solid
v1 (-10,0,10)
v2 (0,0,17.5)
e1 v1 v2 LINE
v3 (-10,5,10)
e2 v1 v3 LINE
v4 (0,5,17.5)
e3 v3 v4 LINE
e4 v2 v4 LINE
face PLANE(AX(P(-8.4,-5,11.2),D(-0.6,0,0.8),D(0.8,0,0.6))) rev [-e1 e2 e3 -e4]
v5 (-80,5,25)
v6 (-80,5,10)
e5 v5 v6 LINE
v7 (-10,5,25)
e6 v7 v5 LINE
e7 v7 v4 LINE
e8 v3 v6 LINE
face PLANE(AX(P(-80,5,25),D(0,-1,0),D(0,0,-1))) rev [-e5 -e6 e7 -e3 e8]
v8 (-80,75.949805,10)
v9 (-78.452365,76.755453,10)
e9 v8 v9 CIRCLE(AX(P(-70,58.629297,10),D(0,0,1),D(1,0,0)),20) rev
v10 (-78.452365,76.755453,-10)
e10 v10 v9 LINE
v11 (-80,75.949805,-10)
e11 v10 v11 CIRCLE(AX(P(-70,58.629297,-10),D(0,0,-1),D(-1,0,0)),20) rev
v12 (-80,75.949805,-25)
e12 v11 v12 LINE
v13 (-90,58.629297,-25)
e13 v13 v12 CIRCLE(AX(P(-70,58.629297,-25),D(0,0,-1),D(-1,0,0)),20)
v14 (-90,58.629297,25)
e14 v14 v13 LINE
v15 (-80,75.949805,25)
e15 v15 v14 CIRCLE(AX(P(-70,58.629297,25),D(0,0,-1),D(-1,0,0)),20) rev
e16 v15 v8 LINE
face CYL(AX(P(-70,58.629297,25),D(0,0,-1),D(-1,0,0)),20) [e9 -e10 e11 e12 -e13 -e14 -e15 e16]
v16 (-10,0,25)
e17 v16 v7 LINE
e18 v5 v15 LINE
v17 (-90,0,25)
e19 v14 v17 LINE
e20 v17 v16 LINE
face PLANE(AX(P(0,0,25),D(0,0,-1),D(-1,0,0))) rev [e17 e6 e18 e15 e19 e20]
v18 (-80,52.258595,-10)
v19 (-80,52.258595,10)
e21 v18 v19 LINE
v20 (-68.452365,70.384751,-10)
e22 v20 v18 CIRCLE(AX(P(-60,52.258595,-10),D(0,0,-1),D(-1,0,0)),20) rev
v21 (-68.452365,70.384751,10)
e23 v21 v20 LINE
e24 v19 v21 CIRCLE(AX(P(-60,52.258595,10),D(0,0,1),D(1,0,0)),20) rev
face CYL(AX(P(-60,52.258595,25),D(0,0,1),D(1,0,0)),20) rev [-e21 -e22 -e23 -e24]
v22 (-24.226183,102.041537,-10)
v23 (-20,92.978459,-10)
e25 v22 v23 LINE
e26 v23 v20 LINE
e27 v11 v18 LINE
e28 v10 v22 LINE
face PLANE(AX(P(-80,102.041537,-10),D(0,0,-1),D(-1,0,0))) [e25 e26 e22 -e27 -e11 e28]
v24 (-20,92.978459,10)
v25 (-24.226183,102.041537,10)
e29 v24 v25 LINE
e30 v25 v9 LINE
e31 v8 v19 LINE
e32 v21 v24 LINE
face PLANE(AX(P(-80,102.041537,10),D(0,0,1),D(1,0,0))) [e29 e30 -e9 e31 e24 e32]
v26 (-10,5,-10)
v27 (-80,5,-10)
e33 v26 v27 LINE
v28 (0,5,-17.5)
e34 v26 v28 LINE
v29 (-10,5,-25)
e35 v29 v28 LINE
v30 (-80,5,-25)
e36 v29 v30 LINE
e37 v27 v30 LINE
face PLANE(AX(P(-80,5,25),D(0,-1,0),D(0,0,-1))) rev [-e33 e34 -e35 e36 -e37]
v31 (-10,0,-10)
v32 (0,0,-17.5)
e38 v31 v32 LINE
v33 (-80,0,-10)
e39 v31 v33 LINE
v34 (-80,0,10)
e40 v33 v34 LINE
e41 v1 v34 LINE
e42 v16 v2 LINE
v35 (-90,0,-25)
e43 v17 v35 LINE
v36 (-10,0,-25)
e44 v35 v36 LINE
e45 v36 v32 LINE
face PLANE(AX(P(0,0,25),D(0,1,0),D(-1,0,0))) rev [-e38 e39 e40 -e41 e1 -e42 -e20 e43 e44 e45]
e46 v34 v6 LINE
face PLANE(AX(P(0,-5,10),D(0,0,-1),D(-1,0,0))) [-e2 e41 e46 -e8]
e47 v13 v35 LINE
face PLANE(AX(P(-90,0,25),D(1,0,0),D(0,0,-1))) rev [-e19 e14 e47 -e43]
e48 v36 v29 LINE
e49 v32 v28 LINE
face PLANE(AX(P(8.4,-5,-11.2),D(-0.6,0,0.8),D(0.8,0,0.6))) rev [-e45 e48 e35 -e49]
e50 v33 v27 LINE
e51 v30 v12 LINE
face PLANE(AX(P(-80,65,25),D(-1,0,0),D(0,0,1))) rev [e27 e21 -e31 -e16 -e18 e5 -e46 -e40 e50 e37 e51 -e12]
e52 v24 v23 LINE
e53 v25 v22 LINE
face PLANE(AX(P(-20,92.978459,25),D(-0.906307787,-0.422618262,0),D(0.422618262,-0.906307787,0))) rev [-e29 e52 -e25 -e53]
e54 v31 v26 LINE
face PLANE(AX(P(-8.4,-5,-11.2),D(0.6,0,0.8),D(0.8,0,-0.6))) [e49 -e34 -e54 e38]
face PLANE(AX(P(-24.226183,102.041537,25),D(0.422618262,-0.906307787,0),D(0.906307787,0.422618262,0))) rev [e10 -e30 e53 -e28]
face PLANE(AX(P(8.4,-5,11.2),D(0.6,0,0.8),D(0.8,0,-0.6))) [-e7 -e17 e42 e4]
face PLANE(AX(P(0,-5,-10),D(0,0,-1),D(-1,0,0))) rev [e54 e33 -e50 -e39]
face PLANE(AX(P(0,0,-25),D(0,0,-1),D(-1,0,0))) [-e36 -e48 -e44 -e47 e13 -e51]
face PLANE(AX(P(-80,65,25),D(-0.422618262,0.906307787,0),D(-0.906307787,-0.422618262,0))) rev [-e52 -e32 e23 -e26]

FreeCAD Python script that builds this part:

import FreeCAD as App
import Part
import Sketcher

V = App.Vector
Q = App.Units.Quantity


def edges_at(feature, points):
    """Names of the edges that pass closest to the given points."""
    edges = feature.Shape.Edges
    near = lambda p: min(range(len(edges)), key=lambda i: edges[i].distToShape(Part.Vertex(*p))[0])
    return sorted({f"Edge{near(p) + 1}" for p in points})


def add_polygon(sketch, points):
    """Adds a closed chain of lines whose ends are joined by coincident constraints."""
    first, n = sketch.GeometryCount, len(points)
    for a, b in zip(points, points[1:] + points[:1]):
        sketch.addGeometry(Part.LineSegment(App.Vector(*a, 0), App.Vector(*b, 0)), False)
    for i in range(n):
        sketch.addConstraint(Sketcher.Constraint("Coincident", first + i, 2, first + (i + 1) % n, 1))

doc = App.newDocument("Part")
body = doc.addObject("PartDesign::Body", "Body")

# Sketch on XY plane
sketch1 = doc.addObject("Sketcher::SketchObject", "Sketch")
body.addObject(sketch1)
sketch1.AttachmentSupport = (doc.XY_Plane, [""])
sketch1.MapMode = "FlatFace"
add_polygon(sketch1, [(0, 0), (0, 5), (-80, 5), (-80, 65), (-20, 93), (-24, 102), (-90, 71), (-90, 0)])  # lines 0-7
sketch1.addConstraint([
    Sketcher.Constraint("Vertical", 0),
    Sketcher.Constraint("Horizontal", 1),
    Sketcher.Constraint("Vertical", 2),
    Sketcher.Constraint("Vertical", 6),
    Sketcher.Constraint("Horizontal", 7),
    Sketcher.Constraint("Coincident", 7, 2, -1, 1),
    Sketcher.Constraint("Perpendicular", 3, 4),
    Sketcher.Constraint("Perpendicular", 4, 5),
    Sketcher.Constraint("DistanceX", 1, 2, 1, 1, Q("80 mm")),
    Sketcher.Constraint("DistanceX", 7, 1, 7, 2, Q("90 mm")),
    Sketcher.Constraint("DistanceY", 0, 1, 0, 2, Q("5 mm")),
    Sketcher.Constraint("DistanceY", 2, 1, 2, 2, Q("60 mm")),
    Sketcher.Constraint("Angle", 3, Q("25 deg")),
    Sketcher.Constraint("Distance", 4, Q("10 mm")),
    Sketcher.Constraint("DistanceX", 3, 2, -1, 1, Q("20 mm")),
])
pad1 = doc.addObject("PartDesign::Pad", "Pad")
body.addObject(pad1)
pad1.Profile = sketch1
pad1.Length = 50
pad1.Midplane = True
doc.recompute()

fillet = doc.addObject("PartDesign::Fillet", "Fillet")
body.addObject(fillet)
fillet.Base = (pad1, edges_at(pad1, [(-90, 71.371, 0), (-80, 65, 0)]))
fillet.Radius = 20

# Sketch on XZ plane
sketch2 = doc.addObject("Sketcher::SketchObject", "Sketch001")
body.addObject(sketch2)
sketch2.AttachmentSupport = (doc.XZ_Plane, [""])
sketch2.MapMode = "FlatFace"
sketch2.AttachmentOffset = App.Placement(V(0, 0, -5), App.Rotation())
add_polygon(sketch2, [(-80, -10), (-80, 10), (-10, 10), (0, 18), (0, -18), (-10, -10)])  # lines 0-5
add_polygon(sketch2, [(-10, -25), (0, -18), (0, -25)])  # lines 6-8
add_polygon(sketch2, [(0, 18), (-10, 25), (0, 25)])  # lines 9-11
sketch2.addConstraint([
    Sketcher.Constraint("Vertical", 0),
    Sketcher.Constraint("Horizontal", 1),
    Sketcher.Constraint("Vertical", 3),
    Sketcher.Constraint("Horizontal", 5),
    Sketcher.Constraint("Vertical", 7),
    Sketcher.Constraint("Horizontal", 8),
    Sketcher.Constraint("Horizontal", 10),
    Sketcher.Constraint("Vertical", 11),
    Sketcher.Constraint("Coincident", 6, 2, 3, 2),
    Sketcher.Constraint("Coincident", 11, 2, 2, 2),
    Sketcher.Constraint("Symmetric", 2, 2, 3, 2, -1, 1),
    Sketcher.Constraint("Symmetric", 1, 2, 4, 2, -1),
    Sketcher.Constraint("Symmetric", 8, 2, 9, 2, -1),
    Sketcher.Constraint("Parallel", 2, 6),
    Sketcher.Constraint("Vertical", 4, 2, 8, 2),
    Sketcher.Constraint("DistanceX", 1, 1, 1, 2, Q("70 mm")),
    Sketcher.Constraint("DistanceX", 8, 2, 8, 1, Q("10 mm")),
    Sketcher.Constraint("DistanceY", 0, 1, 0, 2, Q("20 mm")),
    Sketcher.Constraint("DistanceY", 3, 2, 3, 1, Q("35 mm")),
])
pocket1 = doc.addObject("PartDesign::Pocket", "Pocket")
body.addObject(pocket1)
pocket1.Profile = sketch2
pocket1.Length = 10
pocket1.Reversed = True

# Sketch on XZ plane
sketch3 = doc.addObject("Sketcher::SketchObject", "Sketch002")
body.addObject(sketch3)
sketch3.AttachmentSupport = (doc.XZ_Plane, [""])
sketch3.MapMode = "FlatFace"
sketch3.AttachmentOffset = App.Placement(V(0, 0, -5), App.Rotation())
add_polygon(sketch3, [(-80, 10), (-80, 25), (-10, 25), (-10, 10)])  # lines 0-3
add_polygon(sketch3, [(-80, -25), (-80, -10), (-10, -10), (-10, -25)])  # lines 4-7
sketch3.addConstraint([
    Sketcher.Constraint("Vertical", 0),
    Sketcher.Constraint("Horizontal", 1),
    Sketcher.Constraint("Vertical", 2),
    Sketcher.Constraint("Horizontal", 3),
    Sketcher.Constraint("Vertical", 4),
    Sketcher.Constraint("Horizontal", 5),
    Sketcher.Constraint("Vertical", 6),
    Sketcher.Constraint("Horizontal", 7),
    Sketcher.Constraint("Symmetric", 3, 2, 4, 2, -1),
    Sketcher.Constraint("Symmetric", 1, 2, 6, 2, -1),
    Sketcher.Constraint("DistanceX", 1, 1, 1, 2, Q("70 mm")),
    Sketcher.Constraint("DistanceY", 0, 1, 0, 2, Q("15 mm")),
    Sketcher.Constraint("DistanceX", 0, 2, -1, 1, Q("80 mm")),
    Sketcher.Constraint("DistanceY", -1, 1, 0, 2, Q("25 mm")),
])
pocket2 = doc.addObject("PartDesign::Pocket", "Pocket001")
body.addObject(pocket2)
pocket2.Profile = sketch3
pocket2.Type = "ThroughAll"

doc.recompute()
